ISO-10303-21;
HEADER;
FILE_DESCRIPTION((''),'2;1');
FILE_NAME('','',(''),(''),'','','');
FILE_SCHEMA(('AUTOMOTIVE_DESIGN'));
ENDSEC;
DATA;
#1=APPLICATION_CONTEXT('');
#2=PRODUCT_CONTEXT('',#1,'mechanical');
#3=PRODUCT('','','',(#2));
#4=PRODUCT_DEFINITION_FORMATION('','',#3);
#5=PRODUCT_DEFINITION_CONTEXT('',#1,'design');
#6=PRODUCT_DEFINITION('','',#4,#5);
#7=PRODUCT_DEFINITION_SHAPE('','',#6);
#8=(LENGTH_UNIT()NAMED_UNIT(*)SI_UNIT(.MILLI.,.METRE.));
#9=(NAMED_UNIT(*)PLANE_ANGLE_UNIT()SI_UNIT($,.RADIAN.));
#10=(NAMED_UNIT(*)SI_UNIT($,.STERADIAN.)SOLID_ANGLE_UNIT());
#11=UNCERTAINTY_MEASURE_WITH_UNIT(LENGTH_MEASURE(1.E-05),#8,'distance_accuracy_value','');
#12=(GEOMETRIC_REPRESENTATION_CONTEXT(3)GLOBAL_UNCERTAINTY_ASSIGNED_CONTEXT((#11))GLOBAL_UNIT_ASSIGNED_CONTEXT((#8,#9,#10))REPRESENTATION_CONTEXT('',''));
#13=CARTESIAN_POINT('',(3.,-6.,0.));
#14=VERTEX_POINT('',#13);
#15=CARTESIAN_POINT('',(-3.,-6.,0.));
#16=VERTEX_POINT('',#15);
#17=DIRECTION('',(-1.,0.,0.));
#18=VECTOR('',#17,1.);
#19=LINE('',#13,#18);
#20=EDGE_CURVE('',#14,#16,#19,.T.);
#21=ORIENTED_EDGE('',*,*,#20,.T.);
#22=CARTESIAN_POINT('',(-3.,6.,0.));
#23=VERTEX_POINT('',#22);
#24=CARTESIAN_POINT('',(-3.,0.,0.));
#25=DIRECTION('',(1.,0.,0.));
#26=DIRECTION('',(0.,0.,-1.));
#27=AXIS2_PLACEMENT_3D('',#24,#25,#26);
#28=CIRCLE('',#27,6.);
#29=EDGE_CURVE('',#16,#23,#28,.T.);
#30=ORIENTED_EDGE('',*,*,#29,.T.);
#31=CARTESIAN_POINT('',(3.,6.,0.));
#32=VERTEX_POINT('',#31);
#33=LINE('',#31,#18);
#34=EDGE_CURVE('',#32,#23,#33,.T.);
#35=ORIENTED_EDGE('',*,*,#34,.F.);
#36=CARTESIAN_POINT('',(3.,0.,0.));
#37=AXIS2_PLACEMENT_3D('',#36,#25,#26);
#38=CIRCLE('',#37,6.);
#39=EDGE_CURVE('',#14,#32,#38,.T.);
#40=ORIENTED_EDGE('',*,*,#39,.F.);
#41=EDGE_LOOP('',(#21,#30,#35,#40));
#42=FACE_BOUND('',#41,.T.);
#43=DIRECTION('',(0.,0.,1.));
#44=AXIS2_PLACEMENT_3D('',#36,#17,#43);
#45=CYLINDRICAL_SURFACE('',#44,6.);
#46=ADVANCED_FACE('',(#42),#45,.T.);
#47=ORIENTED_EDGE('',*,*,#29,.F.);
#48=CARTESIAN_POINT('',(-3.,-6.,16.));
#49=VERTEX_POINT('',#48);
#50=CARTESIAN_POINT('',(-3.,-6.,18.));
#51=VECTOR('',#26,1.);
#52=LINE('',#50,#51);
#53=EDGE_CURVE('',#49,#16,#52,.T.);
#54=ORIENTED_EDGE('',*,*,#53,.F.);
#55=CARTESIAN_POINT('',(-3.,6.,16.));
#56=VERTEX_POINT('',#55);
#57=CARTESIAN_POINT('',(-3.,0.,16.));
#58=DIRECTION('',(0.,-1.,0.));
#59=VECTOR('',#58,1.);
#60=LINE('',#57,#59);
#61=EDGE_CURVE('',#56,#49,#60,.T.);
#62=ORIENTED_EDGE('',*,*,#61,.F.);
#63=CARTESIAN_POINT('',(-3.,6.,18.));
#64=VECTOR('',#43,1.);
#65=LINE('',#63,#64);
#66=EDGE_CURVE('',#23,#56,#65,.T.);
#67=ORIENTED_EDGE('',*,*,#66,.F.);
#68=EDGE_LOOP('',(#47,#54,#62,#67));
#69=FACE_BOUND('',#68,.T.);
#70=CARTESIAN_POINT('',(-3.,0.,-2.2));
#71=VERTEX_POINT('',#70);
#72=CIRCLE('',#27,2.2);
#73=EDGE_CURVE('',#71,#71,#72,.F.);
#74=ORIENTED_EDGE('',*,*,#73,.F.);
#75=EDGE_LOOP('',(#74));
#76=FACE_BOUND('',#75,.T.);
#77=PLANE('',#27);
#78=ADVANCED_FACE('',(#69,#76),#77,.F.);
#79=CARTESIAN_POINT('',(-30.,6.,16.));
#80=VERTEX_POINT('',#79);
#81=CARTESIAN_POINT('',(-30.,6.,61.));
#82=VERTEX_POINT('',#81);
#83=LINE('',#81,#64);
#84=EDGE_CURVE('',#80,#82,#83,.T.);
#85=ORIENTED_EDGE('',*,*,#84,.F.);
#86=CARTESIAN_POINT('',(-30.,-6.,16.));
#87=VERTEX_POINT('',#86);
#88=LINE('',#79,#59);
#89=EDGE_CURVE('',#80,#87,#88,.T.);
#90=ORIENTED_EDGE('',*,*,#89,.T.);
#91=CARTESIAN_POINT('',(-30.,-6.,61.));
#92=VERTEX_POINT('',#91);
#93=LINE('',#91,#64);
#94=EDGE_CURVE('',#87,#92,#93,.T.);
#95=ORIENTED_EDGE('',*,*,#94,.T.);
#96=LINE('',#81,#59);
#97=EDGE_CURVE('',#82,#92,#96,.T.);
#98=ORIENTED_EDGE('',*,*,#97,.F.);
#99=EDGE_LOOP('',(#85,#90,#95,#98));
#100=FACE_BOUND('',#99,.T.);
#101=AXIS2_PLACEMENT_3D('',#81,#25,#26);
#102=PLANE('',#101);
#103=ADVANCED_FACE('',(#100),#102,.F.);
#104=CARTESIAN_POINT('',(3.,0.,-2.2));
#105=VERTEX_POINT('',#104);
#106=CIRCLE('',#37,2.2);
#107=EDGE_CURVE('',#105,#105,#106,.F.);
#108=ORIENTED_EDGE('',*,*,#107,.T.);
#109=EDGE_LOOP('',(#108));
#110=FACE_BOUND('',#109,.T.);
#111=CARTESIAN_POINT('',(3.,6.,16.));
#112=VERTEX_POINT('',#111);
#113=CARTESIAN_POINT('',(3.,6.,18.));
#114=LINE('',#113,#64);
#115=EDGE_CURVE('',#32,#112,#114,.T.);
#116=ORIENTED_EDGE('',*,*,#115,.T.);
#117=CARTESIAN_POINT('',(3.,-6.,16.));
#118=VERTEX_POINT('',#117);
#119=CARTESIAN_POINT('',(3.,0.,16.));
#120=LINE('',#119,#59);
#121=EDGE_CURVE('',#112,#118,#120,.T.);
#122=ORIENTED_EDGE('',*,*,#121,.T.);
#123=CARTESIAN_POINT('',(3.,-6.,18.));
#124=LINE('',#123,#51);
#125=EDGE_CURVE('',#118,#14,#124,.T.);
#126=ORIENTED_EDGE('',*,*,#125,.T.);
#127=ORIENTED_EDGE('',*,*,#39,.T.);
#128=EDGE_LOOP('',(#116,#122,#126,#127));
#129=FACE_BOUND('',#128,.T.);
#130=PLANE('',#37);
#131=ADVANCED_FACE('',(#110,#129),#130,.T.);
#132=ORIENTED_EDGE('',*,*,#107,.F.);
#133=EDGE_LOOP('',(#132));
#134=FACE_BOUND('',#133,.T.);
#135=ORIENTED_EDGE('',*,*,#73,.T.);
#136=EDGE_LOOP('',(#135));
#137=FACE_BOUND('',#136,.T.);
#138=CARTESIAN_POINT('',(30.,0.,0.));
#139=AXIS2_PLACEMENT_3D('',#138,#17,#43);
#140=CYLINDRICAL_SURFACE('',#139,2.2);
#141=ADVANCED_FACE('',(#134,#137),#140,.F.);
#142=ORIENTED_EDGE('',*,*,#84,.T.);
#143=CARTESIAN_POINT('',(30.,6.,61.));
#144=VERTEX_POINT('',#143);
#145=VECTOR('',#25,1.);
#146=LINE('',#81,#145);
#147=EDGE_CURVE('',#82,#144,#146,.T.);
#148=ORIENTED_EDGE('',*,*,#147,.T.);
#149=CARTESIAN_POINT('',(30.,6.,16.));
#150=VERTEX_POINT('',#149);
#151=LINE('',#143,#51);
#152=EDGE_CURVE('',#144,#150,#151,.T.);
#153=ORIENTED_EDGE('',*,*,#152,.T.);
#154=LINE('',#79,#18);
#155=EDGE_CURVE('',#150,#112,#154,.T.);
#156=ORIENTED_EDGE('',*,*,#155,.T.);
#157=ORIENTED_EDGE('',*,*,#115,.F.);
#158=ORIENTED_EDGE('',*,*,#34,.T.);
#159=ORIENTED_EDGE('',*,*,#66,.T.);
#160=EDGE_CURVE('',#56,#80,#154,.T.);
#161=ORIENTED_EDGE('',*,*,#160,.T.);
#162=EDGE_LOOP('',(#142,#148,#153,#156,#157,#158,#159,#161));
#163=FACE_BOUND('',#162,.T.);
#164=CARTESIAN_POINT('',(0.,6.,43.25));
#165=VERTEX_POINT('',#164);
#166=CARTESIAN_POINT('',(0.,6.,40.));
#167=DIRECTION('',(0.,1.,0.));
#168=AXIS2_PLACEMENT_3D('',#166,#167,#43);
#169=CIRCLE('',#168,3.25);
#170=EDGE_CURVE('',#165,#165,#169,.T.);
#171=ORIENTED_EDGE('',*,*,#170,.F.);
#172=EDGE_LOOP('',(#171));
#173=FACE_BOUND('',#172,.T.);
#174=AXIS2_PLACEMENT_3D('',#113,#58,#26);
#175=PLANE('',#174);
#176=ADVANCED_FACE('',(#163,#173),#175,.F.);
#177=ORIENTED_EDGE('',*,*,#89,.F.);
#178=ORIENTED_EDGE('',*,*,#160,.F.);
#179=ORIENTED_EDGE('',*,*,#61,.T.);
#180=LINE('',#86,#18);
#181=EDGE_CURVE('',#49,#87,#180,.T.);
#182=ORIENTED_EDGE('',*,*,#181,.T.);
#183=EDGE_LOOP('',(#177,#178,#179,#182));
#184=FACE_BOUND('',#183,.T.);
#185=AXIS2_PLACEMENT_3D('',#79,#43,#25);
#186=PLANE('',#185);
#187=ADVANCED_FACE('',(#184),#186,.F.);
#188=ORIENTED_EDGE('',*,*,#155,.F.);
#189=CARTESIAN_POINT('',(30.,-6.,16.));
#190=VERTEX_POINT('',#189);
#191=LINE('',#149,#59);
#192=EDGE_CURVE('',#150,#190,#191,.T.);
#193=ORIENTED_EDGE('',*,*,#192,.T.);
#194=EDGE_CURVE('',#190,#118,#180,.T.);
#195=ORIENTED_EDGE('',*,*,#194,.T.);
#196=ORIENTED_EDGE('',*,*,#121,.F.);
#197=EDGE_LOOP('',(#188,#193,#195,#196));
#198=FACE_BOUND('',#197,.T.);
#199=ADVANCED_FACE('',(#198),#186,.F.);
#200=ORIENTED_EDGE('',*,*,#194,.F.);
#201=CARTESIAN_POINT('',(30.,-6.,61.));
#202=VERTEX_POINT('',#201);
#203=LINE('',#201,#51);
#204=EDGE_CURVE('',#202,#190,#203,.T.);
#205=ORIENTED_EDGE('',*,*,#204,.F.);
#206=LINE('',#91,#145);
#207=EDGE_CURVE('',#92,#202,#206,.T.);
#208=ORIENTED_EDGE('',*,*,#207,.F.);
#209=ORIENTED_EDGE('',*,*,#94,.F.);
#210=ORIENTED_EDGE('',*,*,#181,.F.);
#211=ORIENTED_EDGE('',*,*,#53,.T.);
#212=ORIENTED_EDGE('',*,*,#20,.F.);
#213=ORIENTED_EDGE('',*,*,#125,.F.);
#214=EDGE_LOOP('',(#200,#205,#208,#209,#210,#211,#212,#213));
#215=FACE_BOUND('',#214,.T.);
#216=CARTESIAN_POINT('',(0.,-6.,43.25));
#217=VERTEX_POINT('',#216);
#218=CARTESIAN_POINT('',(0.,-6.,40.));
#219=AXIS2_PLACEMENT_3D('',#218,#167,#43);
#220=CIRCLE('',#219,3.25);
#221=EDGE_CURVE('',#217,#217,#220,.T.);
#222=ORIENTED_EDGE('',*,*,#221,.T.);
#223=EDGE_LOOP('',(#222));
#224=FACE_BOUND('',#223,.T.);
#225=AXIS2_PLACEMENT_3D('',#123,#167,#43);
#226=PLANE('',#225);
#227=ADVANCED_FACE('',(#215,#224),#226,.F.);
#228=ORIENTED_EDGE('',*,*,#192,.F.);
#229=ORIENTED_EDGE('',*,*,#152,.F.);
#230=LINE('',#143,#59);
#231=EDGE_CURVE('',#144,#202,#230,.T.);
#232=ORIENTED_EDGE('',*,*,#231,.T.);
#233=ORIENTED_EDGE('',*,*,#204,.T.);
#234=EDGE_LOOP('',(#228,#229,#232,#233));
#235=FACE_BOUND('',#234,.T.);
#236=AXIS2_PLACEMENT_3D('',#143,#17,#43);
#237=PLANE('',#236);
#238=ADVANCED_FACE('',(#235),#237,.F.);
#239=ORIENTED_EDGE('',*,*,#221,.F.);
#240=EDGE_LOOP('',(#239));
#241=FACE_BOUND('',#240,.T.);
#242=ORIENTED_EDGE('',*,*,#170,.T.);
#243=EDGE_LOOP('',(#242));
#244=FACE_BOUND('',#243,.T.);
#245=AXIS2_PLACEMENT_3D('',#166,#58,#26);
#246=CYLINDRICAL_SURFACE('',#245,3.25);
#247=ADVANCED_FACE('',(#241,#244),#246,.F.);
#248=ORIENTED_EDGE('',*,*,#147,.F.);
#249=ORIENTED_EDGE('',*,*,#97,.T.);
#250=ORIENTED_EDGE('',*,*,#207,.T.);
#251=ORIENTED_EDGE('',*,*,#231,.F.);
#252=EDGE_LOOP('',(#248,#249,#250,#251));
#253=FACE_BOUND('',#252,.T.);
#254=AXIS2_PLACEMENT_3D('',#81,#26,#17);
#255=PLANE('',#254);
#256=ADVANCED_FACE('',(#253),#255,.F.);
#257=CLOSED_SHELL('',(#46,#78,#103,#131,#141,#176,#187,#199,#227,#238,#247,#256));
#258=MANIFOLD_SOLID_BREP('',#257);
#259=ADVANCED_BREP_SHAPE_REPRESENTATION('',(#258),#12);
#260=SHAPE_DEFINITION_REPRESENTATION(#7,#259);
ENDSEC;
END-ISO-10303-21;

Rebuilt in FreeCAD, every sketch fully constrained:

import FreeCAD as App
import Part
import Sketcher

V = App.Vector

doc = App.newDocument("Part")
body = doc.addObject("PartDesign::Body", "Body")

# Sketch on YZ plane
sketch1 = body.newObject("Sketcher::SketchObject", "Sketch")
sketch1.AttachmentSupport = (doc.getObject("YZ_Plane"), [""])
sketch1.MapMode = "FlatFace"
sketch1.addGeometry(Part.Circle(V(0, 0, 0), V(0, 0, 1), 6), False)
sketch1.addConstraint([
    Sketcher.Constraint("Coincident", 0, 3, -1, 1),
    Sketcher.Constraint("Diameter", 0, 12.0),
])
pad1 = body.newObject("PartDesign::Pad", "Pad")
pad1.Profile = sketch1
pad1.Length = 6
pad1.Midplane = True

# Sketch on YZ plane
sketch2 = body.newObject("Sketcher::SketchObject", "Sketch001")
sketch2.AttachmentSupport = (doc.getObject("YZ_Plane"), [""])
sketch2.MapMode = "FlatFace"
sketch2.addGeometry([
    Part.LineSegment(V(6, 18, 0), V(-6, 18, 0)),
    Part.LineSegment(V(-6, 18, 0), V(-6, 0, 0)),
    Part.LineSegment(V(-6, 0, 0), V(6, 0, 0)),
    Part.LineSegment(V(6, 0, 0), V(6, 18, 0)),
], False)
sketch2.addConstraint([
    Sketcher.Constraint("Coincident", 0, 2, 1, 1),
    Sketcher.Constraint("Coincident", 1, 2, 2, 1),
    Sketcher.Constraint("Coincident", 2, 2, 3, 1),
    Sketcher.Constraint("Coincident", 3, 2, 0, 1),
    Sketcher.Constraint("Horizontal", 0),
    Sketcher.Constraint("Vertical", 1),
    Sketcher.Constraint("Horizontal", 2),
    Sketcher.Constraint("Vertical", 3),
    Sketcher.Constraint("Symmetric", 1, 2, 2, 2, -1, 1),
    Sketcher.Constraint("DistanceX", 0, 2, 0, 1, 12.0),
    Sketcher.Constraint("DistanceY", 1, 2, 1, 1, 18.0),
])
pad2 = body.newObject("PartDesign::Pad", "Pad001")
pad2.Profile = sketch2
pad2.Length = 6
pad2.Midplane = True

# Sketch on XZ plane
sketch3 = body.newObject("Sketcher::SketchObject", "Sketch002")
sketch3.AttachmentSupport = (doc.getObject("XZ_Plane"), [""])
sketch3.MapMode = "FlatFace"
sketch3.AttachmentOffset = App.Placement(V(0, 0, 6), App.Rotation())
sketch3.addGeometry([
    Part.LineSegment(V(-30, 16, 0), V(-30, 61, 0)),
    Part.LineSegment(V(-30, 61, 0), V(30, 61, 0)),
    Part.LineSegment(V(30, 61, 0), V(30, 16, 0)),
    Part.LineSegment(V(30, 16, 0), V(-30, 16, 0)),
], False)
sketch3.addConstraint([
    Sketcher.Constraint("Coincident", 0, 2, 1, 1),
    Sketcher.Constraint("Coincident", 1, 2, 2, 1),
    Sketcher.Constraint("Coincident", 2, 2, 3, 1),
    Sketcher.Constraint("Coincident", 3, 2, 0, 1),
    Sketcher.Constraint("Vertical", 0),
    Sketcher.Constraint("Horizontal", 1),
    Sketcher.Constraint("Vertical", 2),
    Sketcher.Constraint("Horizontal", 3),
    Sketcher.Constraint("DistanceX", 1, 1, 1, 2, 60.0),
    Sketcher.Constraint("DistanceY", 0, 1, 0, 2, 45.0),
    Sketcher.Constraint("DistanceX", 0, 2, -1, 1, 30.0),
    Sketcher.Constraint("DistanceY", -1, 1, 0, 2, 61.0),
])
pad3 = body.newObject("PartDesign::Pad", "Pad002")
pad3.Profile = sketch3
pad3.Length = 12
pad3.Reversed = True

# Sketch on XZ plane
sketch4 = body.newObject("Sketcher::SketchObject", "Sketch003")
sketch4.AttachmentSupport = (doc.getObject("XZ_Plane"), [""])
sketch4.MapMode = "FlatFace"
sketch4.addGeometry(Part.Circle(V(0, 40, 0), V(0, 0, 1), 3.25), False)
sketch4.addConstraint([
    Sketcher.Constraint("PointOnObject", 0, 3, -2),
    Sketcher.Constraint("Diameter", 0, 6.5),
    Sketcher.Constraint("DistanceY", -1, 1, 0, 3, 40.0),
])
pocket1 = body.newObject("PartDesign::Pocket", "Pocket")
pocket1.Profile = sketch4
pocket1.Type = "ThroughAll"
pocket1.Midplane = True

# Sketch on YZ plane
sketch5 = body.newObject("Sketcher::SketchObject", "Sketch004")
sketch5.AttachmentSupport = (doc.getObject("YZ_Plane"), [""])
sketch5.MapMode = "FlatFace"
sketch5.addGeometry(Part.Circle(V(0, 0, 0), V(0, 0, 1), 2.2), False)
sketch5.addConstraint([
    Sketcher.Constraint("Coincident", 0, 3, -1, 1),
    Sketcher.Constraint("Diameter", 0, 4.4),
])
pocket2 = body.newObject("PartDesign::Pocket", "Pocket001")
pocket2.Profile = sketch5
pocket2.Type = "ThroughAll"
pocket2.Midplane = True

doc.recompute()
